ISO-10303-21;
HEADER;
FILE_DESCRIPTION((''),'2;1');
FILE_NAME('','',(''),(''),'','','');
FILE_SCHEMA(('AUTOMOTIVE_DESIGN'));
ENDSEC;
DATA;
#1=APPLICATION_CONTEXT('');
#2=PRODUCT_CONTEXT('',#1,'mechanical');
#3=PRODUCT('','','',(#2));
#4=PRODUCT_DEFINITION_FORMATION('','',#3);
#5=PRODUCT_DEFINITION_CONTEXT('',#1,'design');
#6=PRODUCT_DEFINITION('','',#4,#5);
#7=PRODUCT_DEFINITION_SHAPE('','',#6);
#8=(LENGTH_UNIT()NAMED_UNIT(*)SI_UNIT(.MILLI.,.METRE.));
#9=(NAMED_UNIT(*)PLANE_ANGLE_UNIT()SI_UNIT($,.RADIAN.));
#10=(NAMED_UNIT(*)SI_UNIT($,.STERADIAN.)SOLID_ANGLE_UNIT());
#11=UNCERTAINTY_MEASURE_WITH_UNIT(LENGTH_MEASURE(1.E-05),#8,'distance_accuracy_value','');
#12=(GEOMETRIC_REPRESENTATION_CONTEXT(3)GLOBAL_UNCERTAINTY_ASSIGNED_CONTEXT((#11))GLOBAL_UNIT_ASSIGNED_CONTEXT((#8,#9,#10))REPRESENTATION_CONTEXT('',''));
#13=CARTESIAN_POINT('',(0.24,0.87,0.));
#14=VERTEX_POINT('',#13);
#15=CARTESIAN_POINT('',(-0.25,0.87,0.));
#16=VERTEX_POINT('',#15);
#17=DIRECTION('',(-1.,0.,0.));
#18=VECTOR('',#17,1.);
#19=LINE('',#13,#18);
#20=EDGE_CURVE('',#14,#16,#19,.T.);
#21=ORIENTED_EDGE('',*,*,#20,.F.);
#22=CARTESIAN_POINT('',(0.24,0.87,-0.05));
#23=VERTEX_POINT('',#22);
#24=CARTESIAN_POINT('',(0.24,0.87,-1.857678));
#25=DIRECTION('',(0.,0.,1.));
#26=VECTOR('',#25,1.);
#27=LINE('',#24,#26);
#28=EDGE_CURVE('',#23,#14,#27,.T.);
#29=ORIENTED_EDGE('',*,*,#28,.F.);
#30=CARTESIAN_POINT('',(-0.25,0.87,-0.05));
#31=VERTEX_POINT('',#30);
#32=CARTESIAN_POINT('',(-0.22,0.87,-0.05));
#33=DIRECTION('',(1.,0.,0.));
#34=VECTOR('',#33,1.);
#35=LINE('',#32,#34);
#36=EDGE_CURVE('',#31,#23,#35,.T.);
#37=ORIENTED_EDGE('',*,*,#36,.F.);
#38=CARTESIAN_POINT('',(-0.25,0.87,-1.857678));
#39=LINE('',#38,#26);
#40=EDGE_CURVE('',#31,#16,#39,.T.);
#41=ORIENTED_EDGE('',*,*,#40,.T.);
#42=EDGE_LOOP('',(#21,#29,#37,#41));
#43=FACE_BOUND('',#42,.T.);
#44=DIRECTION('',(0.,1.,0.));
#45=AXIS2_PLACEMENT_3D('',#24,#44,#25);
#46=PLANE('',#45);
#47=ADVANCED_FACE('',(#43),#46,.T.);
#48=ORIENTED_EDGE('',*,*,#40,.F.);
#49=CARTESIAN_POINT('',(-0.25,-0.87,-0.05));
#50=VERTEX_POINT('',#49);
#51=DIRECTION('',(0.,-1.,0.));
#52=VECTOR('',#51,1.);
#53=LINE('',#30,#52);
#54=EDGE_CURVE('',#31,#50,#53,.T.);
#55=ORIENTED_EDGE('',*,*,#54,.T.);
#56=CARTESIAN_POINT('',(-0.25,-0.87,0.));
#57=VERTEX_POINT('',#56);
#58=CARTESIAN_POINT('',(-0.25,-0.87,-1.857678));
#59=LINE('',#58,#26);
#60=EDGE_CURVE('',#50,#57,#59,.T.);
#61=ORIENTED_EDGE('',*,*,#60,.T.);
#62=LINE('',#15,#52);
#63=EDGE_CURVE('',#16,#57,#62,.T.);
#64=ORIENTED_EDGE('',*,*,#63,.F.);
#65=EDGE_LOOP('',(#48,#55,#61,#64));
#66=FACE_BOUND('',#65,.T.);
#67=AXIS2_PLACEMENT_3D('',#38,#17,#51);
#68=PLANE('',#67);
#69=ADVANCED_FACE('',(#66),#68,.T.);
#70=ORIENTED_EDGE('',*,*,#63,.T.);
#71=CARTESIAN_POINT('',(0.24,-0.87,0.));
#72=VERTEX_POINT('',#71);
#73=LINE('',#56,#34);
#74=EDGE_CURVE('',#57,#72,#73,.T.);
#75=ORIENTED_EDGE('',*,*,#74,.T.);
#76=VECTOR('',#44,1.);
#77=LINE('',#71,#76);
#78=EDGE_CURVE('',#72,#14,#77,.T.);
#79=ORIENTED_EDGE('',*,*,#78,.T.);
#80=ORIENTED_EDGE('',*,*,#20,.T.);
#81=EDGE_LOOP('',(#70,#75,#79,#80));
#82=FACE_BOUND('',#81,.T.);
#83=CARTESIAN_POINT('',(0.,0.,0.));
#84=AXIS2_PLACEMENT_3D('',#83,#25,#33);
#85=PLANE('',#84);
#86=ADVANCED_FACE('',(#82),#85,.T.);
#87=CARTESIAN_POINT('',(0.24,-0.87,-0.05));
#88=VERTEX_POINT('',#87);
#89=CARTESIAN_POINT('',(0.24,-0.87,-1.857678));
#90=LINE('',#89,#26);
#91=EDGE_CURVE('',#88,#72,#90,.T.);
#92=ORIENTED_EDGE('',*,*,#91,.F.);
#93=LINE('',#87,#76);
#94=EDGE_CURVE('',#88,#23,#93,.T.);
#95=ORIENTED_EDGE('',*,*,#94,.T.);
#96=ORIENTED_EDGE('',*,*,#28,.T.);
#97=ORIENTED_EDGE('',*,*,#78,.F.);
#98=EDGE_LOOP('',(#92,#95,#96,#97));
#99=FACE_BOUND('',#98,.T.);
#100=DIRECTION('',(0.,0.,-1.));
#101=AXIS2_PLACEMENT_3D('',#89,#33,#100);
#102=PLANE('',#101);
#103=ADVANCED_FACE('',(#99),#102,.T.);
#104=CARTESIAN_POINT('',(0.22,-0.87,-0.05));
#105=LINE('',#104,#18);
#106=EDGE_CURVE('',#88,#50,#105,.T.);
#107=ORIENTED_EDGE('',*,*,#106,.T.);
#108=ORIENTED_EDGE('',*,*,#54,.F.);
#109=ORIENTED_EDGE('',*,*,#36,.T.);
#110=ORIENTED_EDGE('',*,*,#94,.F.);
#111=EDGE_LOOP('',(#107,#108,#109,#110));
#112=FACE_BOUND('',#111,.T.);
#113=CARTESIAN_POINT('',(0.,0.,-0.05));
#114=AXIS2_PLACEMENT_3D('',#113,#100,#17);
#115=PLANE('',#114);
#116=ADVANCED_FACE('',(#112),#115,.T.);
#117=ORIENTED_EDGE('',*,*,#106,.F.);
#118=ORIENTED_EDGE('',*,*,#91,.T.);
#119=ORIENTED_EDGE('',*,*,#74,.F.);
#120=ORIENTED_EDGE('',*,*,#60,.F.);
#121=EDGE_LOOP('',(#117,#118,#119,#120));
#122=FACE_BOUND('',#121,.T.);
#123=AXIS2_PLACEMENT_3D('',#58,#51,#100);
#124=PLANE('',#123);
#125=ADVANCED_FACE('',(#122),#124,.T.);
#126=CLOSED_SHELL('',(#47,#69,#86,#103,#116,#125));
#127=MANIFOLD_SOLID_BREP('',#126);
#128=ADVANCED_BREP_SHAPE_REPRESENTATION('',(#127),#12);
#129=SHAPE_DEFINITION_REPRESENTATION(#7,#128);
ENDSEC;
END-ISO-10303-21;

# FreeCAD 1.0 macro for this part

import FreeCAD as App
import Part
import Sketcher


def add_polygon(sketch, points):
    """Adds a closed chain of lines whose ends are joined by coincident constraints."""
    first, n = sketch.GeometryCount, len(points)
    for a, b in zip(points, points[1:] + points[:1]):
        sketch.addGeometry(Part.LineSegment(App.Vector(*a, 0), App.Vector(*b, 0)), False)
    for i in range(n):
        sketch.addConstraint(Sketcher.Constraint("Coincident", first + i, 2, first + (i + 1) % n, 1))

doc = App.newDocument("Part")
body = doc.addObject("PartDesign::Body", "Body")

# Sketch on XY plane
sketch1 = doc.addObject("Sketcher::SketchObject", "Sketch")
body.addObject(sketch1)
sketch1.AttachmentSupport = (doc.XY_Plane, [""])
sketch1.MapMode = "FlatFace"
add_polygon(sketch1, [(-0.25, 0.87), (-0.25, -0.87), (0.24, -0.87), (0.24, 0.87)])  # lines 0-3
sketch1.addConstraint([
    Sketcher.Constraint("Vertical", 0),
    Sketcher.Constraint("Horizontal", 1),
    Sketcher.Constraint("Vertical", 2),
    Sketcher.Constraint("Horizontal", 3),
    Sketcher.Constraint("DistanceX", 1, 1, 1, 2, 0.49),
    Sketcher.Constraint("DistanceY", 0, 2, 0, 1, 1.74),
    Sketcher.Constraint("DistanceX", 0, 2, -1, 1, 0.25),
    Sketcher.Constraint("DistanceY", 0, 2, -1, 1, 0.87),
])
pad1 = doc.addObject("PartDesign::Pad", "Pad")
body.addObject(pad1)
pad1.Profile = sketch1
pad1.Length = 0.05
pad1.Reversed = True

doc.recompute()
